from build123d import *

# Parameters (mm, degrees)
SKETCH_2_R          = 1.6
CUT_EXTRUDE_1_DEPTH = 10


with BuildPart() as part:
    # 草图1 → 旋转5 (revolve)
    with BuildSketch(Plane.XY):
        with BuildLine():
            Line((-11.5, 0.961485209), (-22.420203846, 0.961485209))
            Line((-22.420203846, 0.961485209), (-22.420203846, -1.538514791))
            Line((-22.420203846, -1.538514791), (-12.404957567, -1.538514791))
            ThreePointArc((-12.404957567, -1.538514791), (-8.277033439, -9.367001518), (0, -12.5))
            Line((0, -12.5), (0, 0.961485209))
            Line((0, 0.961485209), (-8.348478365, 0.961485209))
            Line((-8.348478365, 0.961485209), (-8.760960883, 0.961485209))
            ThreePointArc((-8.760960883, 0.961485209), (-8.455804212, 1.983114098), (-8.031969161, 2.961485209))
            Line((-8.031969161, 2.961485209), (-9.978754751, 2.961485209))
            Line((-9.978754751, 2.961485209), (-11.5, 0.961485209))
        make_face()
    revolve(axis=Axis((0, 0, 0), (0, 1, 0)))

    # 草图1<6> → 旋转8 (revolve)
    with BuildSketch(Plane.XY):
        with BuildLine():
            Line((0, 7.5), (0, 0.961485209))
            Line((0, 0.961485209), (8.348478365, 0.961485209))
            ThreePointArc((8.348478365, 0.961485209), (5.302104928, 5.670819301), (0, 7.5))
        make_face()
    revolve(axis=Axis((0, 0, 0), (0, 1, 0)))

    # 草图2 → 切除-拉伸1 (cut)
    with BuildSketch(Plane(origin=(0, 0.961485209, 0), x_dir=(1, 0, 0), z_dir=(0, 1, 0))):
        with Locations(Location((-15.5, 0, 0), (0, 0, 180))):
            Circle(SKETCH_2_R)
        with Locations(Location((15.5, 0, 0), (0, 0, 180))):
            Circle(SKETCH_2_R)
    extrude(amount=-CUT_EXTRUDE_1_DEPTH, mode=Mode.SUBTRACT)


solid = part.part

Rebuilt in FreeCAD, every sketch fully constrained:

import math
import FreeCAD as App
import Part
import Sketcher
from FreeCAD import Vector

doc = App.newDocument("Part")
body = doc.addObject("PartDesign::Body", "Body")

# Sketch on XY plane
sketch1 = body.newObject("Sketcher::SketchObject", "Sketch")
sketch1.AttachmentSupport = (doc.getObject("XY_Plane"), [""])
sketch1.MapMode = "FlatFace"
sketch1.addGeometry([
    Part.LineSegment(Vector(-11.5, 1, 0), Vector(-22.4, 1, 0)),  # 0
    Part.LineSegment(Vector(-22.4, 1, 0), Vector(-22.4, -1.5, 0)),  # 1
    Part.LineSegment(Vector(-22.4, -1.5, 0), Vector(-12.4, -1.5, 0)),  # 2
    Part.ArcOfCircle(Part.Circle(Vector(0, 0, 0), Vector(0, 0, 1), 12.5), math.radians(-173), math.radians(-90)),  # 3
    Part.LineSegment(Vector(0, -12.5, 0), Vector(0, 1, 0)),  # 4
    Part.LineSegment(Vector(0, 1, 0), Vector(-8.8, 1, 0)),  # 5
    Part.ArcOfCircle(Part.Circle(Vector(0, -1.1, 0), Vector(0, 0, 1), 9), math.radians(153.18), math.radians(166.77)),  # 6
    Part.LineSegment(Vector(-8, 3, 0), Vector(-10, 3, 0)),  # 7
    Part.LineSegment(Vector(-10, 3, 0), Vector(-11.5, 1, 0)),  # 8
], False)
sketch1.addConstraint([
    Sketcher.Constraint("Coincident", 0, 2, 1, 1),
    Sketcher.Constraint("Coincident", 1, 2, 2, 1),
    Sketcher.Constraint("Coincident", 2, 2, 3, 1),
    Sketcher.Constraint("Coincident", 3, 2, 4, 1),
    Sketcher.Constraint("Coincident", 4, 2, 5, 1),
    Sketcher.Constraint("Coincident", 5, 2, 6, 2),
    Sketcher.Constraint("Coincident", 6, 1, 7, 1),
    Sketcher.Constraint("Coincident", 7, 2, 8, 1),
    Sketcher.Constraint("Coincident", 8, 2, 0, 1),
    Sketcher.Constraint("Horizontal", 0),
    Sketcher.Constraint("Vertical", 1),
    Sketcher.Constraint("Horizontal", 2),
    Sketcher.Constraint("Vertical", 4),
    Sketcher.Constraint("Horizontal", 5),
    Sketcher.Constraint("Horizontal", 7),
    Sketcher.Constraint("Coincident", 3, 3, -1, 1),
    Sketcher.Constraint("PointOnObject", 6, 3, -2),
    Sketcher.Constraint("PointOnObject", 3, 2, -2),
    Sketcher.Constraint("Horizontal", 0, 2, 4, 2),
    Sketcher.Constraint("Radius", 6, 9.0),
    Sketcher.Constraint("Radius", 3, 12.5),
    Sketcher.Constraint("DistanceY", 1, 2, 1, 1, 2.5),
    Sketcher.Constraint("DistanceY", 5, 2, 6, 1, 2.0),
    Sketcher.Constraint("DistanceX", 8, 2, -1, 1, 11.5),
    Sketcher.Constraint("DistanceX", 5, 2, 5, 1, 8.760961),
    Sketcher.Constraint("DistanceX", 0, 2, 0, 1, 10.920204),
    Sketcher.Constraint("DistanceX", 2, 1, 2, 2, 10.015246),
    Sketcher.Constraint("DistanceX", 7, 2, 7, 1, 1.946786),
])
revolution = body.newObject("PartDesign::Revolution", "Revolution")
revolution.Profile = sketch1
revolution.ReferenceAxis = (sketch1, ["V_Axis"])
revolution.Angle = 360

# Sketch on XY plane
sketch2 = body.newObject("Sketcher::SketchObject", "Sketch001")
sketch2.AttachmentSupport = (doc.getObject("XY_Plane"), [""])
sketch2.MapMode = "FlatFace"
sketch2.addGeometry([
    Part.LineSegment(Vector(0, 8, 0), Vector(0, 1, 0)),
    Part.LineSegment(Vector(0, 1, 0), Vector(8, 1, 0)),
    Part.ArcOfCircle(Part.Circle(Vector(0, -1, 0), Vector(0, 0, 1), 9), math.radians(14), math.radians(90)),
], False)
sketch2.addConstraint([
    Sketcher.Constraint("Coincident", 0, 2, 1, 1),
    Sketcher.Constraint("Coincident", 1, 2, 2, 1),
    Sketcher.Constraint("Coincident", 2, 2, 0, 1),
    Sketcher.Constraint("Vertical", 0),
    Sketcher.Constraint("Horizontal", 1),
    Sketcher.Constraint("PointOnObject", 2, 3, -2),
    Sketcher.Constraint("PointOnObject", 0, 2, -2),
    Sketcher.Constraint("DistanceY", -1, 1, 2, 2, 7.5),
    Sketcher.Constraint("Radius", 2, 8.598992),
    Sketcher.Constraint("DistanceX", 1, 1, 1, 2, 8.348478),
])
revolution2 = body.newObject("PartDesign::Revolution", "Revolution001")
revolution2.Profile = sketch2
revolution2.ReferenceAxis = (sketch2, ["V_Axis"])
revolution2.Angle = 360

# Sketch on XZ plane
sketch3 = body.newObject("Sketcher::SketchObject", "Sketch002")
sketch3.AttachmentSupport = (doc.getObject("XZ_Plane"), [""])
sketch3.MapMode = "FlatFace"
sketch3.AttachmentOffset = App.Placement(Vector(0, 0, -0.961485), App.Rotation())
sketch3.addGeometry([
    Part.Circle(Vector(-15.5, 0, 0), Vector(0, 0, 1), 1.6),
    Part.Circle(Vector(15.5, 0, 0), Vector(0, 0, 1), 1.6),
], False)
sketch3.addConstraint([
    Sketcher.Constraint("Equal", 0, 1),
    Sketcher.Constraint("Symmetric", 0, 3, 1, 3, -1, 1),
    Sketcher.Constraint("PointOnObject", 0, 3, -1),
    Sketcher.Constraint("Diameter", 0, 3.2),
    Sketcher.Constraint("DistanceX", 0, 3, 1, 3, 31.0),
])
pocket1 = body.newObject("PartDesign::Pocket", "Pocket")
pocket1.Profile = sketch3
pocket1.Length = 10
pocket1.Reversed = True

doc.recompute()
